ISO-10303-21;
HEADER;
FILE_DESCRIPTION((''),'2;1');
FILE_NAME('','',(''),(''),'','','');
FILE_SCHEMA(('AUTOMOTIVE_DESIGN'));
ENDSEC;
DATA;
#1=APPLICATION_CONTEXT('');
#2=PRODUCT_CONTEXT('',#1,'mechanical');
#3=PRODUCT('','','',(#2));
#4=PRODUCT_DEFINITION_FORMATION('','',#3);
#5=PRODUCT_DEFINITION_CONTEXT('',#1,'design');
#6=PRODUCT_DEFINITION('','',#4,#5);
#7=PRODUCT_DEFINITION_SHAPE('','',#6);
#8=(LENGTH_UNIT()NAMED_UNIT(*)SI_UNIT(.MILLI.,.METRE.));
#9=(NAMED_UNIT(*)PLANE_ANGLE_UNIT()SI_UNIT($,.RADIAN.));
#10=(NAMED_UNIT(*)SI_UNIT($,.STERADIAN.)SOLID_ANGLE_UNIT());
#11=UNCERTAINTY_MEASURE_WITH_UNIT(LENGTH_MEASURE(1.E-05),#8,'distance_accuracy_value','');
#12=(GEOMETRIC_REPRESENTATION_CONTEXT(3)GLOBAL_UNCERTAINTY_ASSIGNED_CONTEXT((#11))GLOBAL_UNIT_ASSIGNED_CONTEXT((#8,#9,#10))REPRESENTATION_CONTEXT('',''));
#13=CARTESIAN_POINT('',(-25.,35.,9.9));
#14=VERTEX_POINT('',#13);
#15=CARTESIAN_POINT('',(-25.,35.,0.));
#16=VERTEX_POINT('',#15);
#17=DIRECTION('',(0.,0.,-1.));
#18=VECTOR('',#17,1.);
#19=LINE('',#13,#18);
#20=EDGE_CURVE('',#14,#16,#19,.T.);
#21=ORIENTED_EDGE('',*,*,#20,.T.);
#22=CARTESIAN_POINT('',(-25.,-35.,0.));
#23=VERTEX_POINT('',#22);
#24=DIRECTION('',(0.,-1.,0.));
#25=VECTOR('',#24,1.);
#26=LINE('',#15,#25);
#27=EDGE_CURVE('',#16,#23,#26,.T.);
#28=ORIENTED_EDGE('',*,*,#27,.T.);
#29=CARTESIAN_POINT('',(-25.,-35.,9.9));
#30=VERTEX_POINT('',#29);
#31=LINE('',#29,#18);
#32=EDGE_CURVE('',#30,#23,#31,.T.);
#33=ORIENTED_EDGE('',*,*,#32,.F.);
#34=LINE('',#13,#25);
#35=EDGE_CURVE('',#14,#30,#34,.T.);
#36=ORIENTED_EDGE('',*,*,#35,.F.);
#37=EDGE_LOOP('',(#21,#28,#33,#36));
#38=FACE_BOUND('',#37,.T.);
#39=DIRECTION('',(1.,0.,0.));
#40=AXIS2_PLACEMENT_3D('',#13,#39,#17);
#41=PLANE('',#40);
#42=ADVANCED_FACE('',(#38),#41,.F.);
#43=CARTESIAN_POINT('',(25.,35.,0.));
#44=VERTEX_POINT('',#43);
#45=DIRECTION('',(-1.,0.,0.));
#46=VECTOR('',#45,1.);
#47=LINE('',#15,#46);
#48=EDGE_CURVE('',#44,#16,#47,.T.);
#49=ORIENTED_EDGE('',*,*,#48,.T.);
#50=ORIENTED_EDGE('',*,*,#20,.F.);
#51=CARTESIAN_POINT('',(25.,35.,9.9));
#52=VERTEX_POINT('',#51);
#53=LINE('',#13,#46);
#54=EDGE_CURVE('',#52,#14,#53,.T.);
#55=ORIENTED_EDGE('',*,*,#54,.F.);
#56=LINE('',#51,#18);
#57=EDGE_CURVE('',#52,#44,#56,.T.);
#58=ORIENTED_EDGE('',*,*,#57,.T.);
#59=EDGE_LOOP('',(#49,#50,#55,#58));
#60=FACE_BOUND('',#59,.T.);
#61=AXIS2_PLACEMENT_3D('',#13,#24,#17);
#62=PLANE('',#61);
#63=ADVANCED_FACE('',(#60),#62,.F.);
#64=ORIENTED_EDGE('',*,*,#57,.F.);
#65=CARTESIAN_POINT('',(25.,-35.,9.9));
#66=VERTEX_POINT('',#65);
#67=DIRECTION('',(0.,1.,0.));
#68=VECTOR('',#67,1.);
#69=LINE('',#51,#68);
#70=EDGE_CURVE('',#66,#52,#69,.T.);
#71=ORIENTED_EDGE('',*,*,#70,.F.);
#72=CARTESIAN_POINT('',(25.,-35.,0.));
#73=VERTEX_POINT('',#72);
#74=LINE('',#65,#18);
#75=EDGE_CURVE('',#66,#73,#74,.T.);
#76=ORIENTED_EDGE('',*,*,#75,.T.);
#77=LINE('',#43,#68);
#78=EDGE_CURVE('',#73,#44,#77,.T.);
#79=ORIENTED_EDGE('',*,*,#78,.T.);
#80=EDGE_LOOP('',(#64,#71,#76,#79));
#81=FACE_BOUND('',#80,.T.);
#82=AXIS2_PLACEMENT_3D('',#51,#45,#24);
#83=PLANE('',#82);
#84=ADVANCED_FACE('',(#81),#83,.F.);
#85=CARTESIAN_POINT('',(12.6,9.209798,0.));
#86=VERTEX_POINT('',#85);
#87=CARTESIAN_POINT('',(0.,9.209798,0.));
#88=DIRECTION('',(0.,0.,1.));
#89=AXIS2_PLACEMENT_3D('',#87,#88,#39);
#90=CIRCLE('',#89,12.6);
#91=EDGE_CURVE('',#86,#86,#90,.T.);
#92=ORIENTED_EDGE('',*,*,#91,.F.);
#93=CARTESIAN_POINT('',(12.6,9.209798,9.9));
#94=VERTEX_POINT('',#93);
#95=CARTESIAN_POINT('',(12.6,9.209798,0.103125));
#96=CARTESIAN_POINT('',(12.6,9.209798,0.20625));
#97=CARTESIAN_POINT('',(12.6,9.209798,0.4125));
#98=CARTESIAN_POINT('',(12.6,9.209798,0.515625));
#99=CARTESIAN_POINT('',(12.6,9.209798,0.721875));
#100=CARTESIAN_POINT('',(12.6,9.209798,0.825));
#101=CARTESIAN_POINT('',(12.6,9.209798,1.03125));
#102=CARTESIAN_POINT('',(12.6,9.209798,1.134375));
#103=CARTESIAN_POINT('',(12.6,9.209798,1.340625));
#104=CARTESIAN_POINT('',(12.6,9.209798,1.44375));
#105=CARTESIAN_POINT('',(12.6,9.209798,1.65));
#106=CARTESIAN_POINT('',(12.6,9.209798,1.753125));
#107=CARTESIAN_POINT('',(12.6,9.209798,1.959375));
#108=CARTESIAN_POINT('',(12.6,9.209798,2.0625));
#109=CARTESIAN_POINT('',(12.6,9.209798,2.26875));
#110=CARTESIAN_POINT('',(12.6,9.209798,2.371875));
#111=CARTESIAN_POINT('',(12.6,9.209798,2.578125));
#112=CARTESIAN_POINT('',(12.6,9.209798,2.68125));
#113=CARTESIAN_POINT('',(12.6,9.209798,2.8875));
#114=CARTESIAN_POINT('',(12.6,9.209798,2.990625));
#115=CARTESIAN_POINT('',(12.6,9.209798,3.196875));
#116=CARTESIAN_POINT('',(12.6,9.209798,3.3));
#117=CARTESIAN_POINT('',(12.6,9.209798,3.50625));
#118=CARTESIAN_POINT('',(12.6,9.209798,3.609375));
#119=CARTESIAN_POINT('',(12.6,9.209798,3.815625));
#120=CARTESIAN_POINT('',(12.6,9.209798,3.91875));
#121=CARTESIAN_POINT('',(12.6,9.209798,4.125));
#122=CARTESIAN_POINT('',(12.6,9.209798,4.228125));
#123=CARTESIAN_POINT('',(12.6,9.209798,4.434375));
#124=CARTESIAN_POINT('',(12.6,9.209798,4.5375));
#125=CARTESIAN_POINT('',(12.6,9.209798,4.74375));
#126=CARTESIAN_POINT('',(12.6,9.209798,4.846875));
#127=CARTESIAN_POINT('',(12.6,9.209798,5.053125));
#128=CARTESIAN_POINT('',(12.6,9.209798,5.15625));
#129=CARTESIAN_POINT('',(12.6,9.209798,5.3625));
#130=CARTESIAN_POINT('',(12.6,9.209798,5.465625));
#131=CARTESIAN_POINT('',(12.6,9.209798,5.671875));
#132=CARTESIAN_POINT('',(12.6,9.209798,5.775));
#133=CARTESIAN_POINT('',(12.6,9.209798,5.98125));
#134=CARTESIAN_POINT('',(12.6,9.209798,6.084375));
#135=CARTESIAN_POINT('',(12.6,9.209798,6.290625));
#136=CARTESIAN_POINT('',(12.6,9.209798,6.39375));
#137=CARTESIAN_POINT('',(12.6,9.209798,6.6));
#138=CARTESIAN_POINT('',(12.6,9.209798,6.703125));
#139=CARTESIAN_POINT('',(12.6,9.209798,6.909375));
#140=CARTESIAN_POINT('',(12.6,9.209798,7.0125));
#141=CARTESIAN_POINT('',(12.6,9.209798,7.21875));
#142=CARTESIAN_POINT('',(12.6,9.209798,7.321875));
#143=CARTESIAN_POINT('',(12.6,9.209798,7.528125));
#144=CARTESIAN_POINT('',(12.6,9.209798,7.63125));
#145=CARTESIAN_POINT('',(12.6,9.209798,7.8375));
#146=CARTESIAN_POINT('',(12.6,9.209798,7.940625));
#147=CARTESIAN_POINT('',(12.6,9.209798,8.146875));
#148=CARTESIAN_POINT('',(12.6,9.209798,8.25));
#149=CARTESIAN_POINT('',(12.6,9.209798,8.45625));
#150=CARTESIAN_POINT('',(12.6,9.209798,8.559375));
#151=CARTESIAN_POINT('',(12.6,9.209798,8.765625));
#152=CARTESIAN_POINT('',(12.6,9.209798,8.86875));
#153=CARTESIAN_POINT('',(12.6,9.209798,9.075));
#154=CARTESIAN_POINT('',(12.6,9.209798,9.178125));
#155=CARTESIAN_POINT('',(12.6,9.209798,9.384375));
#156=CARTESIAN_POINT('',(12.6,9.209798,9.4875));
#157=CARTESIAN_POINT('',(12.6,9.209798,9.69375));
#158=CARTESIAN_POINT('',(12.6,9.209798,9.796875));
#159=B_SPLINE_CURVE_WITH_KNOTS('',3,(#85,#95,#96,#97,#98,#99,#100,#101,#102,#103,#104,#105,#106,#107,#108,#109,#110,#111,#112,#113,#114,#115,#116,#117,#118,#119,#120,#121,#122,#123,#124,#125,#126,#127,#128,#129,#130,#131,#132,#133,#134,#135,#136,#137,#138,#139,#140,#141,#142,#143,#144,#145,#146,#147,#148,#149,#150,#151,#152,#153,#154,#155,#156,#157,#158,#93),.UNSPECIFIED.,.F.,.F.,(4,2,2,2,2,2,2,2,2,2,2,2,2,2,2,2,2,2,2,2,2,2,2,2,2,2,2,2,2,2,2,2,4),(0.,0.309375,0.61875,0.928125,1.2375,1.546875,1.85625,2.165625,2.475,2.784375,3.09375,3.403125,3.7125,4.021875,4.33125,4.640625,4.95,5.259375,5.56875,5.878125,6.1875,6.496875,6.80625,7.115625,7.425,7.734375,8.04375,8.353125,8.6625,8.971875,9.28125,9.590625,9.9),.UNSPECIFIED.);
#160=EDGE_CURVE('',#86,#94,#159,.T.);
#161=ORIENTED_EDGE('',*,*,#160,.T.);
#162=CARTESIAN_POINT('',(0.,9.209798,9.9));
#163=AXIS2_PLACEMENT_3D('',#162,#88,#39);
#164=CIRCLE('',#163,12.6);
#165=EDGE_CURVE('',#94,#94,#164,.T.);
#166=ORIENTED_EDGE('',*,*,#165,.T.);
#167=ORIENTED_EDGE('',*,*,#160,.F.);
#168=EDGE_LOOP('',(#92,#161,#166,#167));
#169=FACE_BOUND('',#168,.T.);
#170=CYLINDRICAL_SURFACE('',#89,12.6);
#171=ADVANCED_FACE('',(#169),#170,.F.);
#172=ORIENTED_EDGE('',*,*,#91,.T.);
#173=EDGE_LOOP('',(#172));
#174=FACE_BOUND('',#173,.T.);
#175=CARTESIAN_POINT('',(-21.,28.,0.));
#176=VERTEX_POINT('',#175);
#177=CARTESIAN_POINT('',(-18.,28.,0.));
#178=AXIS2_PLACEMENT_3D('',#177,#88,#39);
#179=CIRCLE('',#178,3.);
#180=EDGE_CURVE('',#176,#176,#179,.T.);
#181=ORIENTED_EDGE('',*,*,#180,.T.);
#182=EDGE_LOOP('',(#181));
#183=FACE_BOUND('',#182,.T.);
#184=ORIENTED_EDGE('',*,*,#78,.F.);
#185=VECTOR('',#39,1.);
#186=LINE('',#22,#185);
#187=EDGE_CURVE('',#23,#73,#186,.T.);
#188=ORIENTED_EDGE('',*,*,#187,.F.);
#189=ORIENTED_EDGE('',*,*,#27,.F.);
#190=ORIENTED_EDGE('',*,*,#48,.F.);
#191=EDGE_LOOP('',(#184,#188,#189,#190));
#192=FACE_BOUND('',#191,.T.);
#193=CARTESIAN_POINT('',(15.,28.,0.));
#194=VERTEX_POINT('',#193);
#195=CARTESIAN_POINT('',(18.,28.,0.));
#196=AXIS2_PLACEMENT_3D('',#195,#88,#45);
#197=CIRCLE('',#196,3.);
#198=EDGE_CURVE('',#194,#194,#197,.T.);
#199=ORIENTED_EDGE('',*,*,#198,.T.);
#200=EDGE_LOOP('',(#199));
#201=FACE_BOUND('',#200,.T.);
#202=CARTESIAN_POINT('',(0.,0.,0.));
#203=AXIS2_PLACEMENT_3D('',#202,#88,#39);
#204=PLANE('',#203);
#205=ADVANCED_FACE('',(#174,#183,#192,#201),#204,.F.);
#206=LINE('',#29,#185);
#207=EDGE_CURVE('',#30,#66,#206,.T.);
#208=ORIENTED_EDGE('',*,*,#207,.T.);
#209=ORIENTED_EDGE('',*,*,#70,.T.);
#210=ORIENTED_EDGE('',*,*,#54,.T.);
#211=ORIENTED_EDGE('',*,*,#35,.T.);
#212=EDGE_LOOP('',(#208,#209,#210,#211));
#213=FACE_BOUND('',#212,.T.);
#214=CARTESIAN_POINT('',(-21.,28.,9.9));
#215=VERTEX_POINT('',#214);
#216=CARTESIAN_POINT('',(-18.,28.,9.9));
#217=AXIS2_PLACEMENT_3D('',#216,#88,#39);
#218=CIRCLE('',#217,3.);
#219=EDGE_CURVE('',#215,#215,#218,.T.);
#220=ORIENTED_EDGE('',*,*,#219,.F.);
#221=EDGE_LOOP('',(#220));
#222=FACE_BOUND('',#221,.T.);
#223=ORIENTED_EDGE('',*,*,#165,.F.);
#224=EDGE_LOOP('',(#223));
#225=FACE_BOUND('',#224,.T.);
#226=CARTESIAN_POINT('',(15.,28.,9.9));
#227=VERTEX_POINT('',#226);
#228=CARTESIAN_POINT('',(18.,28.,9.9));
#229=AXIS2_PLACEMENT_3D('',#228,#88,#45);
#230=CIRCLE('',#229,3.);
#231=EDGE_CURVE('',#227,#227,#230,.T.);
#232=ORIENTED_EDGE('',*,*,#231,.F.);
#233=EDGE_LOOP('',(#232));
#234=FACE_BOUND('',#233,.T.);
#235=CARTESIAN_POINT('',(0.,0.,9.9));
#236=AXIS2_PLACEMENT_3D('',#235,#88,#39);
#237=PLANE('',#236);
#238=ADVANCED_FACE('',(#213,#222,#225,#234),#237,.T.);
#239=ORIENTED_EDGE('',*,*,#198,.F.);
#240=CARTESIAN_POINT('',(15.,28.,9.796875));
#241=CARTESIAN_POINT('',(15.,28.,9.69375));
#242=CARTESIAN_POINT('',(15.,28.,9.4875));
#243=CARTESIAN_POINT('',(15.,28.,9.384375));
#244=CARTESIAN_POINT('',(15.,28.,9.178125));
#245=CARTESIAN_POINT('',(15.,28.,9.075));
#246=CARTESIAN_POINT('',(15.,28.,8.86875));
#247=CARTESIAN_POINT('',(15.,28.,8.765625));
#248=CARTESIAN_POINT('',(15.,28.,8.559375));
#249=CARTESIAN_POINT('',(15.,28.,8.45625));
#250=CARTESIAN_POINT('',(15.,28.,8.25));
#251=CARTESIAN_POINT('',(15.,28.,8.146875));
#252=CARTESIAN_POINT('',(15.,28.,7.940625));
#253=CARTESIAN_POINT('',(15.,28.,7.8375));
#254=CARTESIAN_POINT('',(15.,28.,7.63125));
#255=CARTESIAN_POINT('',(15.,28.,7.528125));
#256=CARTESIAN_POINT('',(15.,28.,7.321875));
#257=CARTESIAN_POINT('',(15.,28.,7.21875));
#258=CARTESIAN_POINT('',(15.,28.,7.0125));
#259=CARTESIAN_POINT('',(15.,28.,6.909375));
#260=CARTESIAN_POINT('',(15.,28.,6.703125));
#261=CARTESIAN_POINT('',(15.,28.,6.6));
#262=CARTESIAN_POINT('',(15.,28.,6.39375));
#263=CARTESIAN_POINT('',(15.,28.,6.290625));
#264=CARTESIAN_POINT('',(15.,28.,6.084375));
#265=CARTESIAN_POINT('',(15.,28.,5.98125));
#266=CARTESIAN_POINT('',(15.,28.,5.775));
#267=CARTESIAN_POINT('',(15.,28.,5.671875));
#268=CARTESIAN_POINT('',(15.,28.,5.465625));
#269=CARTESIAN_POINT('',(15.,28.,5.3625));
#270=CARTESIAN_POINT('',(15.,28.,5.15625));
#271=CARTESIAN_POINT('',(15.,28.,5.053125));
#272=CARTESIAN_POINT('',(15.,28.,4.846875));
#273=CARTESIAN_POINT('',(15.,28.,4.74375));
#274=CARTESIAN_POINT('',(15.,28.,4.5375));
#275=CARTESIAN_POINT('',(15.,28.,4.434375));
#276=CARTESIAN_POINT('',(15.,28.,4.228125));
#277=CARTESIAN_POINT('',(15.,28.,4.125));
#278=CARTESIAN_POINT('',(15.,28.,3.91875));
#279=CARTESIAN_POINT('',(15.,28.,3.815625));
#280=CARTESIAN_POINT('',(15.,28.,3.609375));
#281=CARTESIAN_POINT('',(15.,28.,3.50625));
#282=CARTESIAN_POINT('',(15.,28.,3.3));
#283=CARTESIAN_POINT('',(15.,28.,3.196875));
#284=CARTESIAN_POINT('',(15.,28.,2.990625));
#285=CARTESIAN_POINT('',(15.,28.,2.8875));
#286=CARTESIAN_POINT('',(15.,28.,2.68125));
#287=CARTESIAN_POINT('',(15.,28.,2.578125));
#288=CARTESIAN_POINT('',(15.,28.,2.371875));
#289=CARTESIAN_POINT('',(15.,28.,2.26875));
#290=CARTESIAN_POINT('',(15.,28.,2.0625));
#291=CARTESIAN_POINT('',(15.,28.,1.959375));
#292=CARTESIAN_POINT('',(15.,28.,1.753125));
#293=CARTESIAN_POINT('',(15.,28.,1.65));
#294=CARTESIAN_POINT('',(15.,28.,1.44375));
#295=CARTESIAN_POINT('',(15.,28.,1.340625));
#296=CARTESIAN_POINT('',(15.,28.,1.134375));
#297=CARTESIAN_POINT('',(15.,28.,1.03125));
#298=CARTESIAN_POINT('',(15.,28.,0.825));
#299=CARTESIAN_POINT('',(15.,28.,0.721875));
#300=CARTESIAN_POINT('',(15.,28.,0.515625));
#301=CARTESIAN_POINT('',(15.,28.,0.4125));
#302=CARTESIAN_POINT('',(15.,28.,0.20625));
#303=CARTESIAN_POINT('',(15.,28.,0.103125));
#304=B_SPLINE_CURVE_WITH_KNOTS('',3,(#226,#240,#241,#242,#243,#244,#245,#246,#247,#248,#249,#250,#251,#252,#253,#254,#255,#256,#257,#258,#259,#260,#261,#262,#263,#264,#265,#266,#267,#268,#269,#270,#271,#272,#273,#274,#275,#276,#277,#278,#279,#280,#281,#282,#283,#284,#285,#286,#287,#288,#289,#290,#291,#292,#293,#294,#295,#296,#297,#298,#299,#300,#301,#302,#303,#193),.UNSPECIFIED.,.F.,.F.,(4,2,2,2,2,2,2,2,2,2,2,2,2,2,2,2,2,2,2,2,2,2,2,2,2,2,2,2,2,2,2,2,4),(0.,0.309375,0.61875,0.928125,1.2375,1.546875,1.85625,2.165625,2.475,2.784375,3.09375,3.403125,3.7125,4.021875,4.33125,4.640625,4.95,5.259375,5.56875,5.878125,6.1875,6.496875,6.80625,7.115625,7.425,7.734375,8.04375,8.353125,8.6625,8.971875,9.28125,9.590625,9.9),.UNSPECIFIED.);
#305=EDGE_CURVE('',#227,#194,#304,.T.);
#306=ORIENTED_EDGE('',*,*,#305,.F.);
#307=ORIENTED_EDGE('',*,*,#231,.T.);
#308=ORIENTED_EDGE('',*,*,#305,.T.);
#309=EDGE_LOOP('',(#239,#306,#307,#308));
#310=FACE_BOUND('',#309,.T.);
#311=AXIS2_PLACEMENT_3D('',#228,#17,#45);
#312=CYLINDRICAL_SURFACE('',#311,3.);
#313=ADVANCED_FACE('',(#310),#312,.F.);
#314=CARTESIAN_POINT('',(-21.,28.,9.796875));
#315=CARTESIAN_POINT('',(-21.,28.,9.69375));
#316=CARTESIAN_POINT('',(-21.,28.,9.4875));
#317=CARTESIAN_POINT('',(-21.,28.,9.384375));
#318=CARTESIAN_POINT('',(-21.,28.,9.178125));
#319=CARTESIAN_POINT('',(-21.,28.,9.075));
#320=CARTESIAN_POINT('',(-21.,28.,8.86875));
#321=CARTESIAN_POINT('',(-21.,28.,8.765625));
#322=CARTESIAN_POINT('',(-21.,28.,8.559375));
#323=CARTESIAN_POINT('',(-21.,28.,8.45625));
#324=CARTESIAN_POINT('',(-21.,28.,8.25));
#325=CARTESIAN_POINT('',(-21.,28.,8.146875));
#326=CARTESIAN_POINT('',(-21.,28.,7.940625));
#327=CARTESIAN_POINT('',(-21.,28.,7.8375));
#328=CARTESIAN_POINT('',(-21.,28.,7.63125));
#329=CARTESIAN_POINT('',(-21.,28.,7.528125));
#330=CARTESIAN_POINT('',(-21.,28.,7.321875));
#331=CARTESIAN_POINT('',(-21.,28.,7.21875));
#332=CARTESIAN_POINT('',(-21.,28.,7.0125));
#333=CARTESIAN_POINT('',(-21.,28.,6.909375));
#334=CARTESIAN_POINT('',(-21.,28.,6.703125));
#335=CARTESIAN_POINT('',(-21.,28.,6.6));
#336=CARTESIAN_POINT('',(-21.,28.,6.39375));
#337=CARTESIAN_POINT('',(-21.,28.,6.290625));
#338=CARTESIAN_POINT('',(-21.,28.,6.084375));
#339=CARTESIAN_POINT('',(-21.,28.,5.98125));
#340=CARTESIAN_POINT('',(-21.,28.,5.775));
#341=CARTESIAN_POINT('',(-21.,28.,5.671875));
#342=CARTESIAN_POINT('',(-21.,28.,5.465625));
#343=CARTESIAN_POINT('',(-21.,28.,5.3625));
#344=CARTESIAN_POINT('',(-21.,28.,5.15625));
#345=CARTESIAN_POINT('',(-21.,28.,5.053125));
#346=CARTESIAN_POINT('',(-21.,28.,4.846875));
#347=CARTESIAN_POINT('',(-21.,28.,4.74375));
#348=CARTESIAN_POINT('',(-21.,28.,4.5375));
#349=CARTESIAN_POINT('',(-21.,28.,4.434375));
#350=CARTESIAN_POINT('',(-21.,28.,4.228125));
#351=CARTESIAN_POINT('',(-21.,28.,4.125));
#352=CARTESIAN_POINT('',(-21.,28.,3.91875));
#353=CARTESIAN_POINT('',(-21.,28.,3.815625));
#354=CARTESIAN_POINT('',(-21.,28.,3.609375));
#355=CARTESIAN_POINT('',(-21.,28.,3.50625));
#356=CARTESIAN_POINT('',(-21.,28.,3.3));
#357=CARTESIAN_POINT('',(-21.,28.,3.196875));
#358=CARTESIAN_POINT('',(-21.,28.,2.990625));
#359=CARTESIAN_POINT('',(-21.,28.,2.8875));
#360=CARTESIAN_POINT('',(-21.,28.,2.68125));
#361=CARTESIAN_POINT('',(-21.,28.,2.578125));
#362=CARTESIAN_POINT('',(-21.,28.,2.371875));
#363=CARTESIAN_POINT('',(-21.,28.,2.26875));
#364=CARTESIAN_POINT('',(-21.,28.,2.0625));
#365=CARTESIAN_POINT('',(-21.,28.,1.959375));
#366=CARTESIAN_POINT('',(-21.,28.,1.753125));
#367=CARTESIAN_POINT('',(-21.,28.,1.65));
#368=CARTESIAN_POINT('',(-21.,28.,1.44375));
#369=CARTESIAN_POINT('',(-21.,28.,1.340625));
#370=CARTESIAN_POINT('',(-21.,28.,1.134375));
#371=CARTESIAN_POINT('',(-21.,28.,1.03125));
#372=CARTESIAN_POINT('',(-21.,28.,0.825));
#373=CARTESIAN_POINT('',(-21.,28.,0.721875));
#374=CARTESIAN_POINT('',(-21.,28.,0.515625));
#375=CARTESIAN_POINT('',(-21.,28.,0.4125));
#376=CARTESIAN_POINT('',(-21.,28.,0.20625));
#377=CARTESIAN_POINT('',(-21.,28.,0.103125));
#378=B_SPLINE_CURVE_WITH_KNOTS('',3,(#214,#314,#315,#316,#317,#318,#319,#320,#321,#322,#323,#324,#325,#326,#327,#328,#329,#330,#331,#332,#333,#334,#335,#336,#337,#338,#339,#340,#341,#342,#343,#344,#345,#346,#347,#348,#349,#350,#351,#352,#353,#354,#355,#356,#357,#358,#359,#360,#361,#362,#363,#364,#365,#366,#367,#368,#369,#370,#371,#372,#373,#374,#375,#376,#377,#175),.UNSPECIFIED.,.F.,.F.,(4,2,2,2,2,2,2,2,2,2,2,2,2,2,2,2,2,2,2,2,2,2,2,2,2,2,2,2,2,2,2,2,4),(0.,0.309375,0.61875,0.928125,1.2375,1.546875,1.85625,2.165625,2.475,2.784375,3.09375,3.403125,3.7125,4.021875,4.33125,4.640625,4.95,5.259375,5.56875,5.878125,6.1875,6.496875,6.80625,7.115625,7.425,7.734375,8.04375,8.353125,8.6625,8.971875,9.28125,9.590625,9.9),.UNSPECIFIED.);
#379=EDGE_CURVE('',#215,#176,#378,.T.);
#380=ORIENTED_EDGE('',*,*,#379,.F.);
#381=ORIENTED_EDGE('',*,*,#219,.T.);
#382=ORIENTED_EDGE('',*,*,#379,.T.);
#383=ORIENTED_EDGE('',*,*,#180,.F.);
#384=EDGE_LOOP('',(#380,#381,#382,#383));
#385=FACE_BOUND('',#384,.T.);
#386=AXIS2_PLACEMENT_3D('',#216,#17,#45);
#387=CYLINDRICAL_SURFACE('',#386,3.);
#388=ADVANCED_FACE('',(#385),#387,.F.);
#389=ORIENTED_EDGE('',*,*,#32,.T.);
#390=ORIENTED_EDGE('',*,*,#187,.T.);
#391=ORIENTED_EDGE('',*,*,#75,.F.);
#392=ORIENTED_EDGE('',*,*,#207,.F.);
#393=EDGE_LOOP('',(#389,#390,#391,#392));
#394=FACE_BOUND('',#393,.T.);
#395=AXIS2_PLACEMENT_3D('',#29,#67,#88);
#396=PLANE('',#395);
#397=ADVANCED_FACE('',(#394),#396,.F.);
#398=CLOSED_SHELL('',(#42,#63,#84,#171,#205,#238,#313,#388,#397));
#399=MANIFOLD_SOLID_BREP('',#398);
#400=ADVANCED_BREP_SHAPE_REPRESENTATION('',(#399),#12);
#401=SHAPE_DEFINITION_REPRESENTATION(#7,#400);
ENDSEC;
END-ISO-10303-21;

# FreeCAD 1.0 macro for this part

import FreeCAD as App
import Part
import Sketcher
from FreeCAD import Vector
Q = App.Units.Quantity


def add_polygon(sketch, points):
    """Adds a closed chain of lines whose ends are joined by coincident constraints."""
    first, n = sketch.GeometryCount, len(points)
    for a, b in zip(points, points[1:] + points[:1]):
        sketch.addGeometry(Part.LineSegment(App.Vector(*a, 0), App.Vector(*b, 0)), False)
    for i in range(n):
        sketch.addConstraint(Sketcher.Constraint("Coincident", first + i, 2, first + (i + 1) % n, 1))

doc = App.newDocument("Part")
body = doc.addObject("PartDesign::Body", "Body")

# Sketch on XY plane
sketch1 = body.newObject("Sketcher::SketchObject", "Sketch")
sketch1.AttachmentSupport = (doc.getObject("XY_Plane"), [""])
sketch1.MapMode = "FlatFace"
add_polygon(sketch1, [(-25, 35), (-25, -35), (25, -35), (25, 35)])  # lines 0-3
sketch1.addGeometry(Part.Circle(Vector(-18, 28, 0), Vector(0, 0, 1), 3), False)  # 4
sketch1.addGeometry(Part.Circle(Vector(18, 28, 0), Vector(0, 0, 1), 3), False)  # 5
sketch1.addConstraint(Sketcher.Constraint("Vertical", 0))
sketch1.addConstraint(Sketcher.Constraint("Horizontal", 1))
sketch1.addConstraint(Sketcher.Constraint("Vertical", 2))
sketch1.addConstraint(Sketcher.Constraint("Horizontal", 3))
sketch1.addConstraint(Sketcher.Constraint("Equal", 4, 5))
sketch1.addConstraint(Sketcher.Constraint("Symmetric", 0, 2, 2, 2, -1, 1))
sketch1.addConstraint(Sketcher.Constraint("Symmetric", 4, 3, 5, 3, -2))
sketch1.addConstraint(Sketcher.Constraint("Diameter", 4, Q("6 mm")))
sketch1.addConstraint(Sketcher.Constraint("DistanceX", 1, 1, 1, 2, Q("50 mm")))
sketch1.addConstraint(Sketcher.Constraint("DistanceY", 0, 2, 0, 1, Q("70 mm")))
sketch1.addConstraint(Sketcher.Constraint("DistanceX", 4, 3, -1, 1, Q("18 mm")))
sketch1.addConstraint(Sketcher.Constraint("DistanceY", -1, 1, 4, 3, Q("28 mm")))
pad1 = body.newObject("PartDesign::Pad", "Pad")
pad1.Profile = sketch1
pad1.Length = 9.9

# Sketch on XY plane
sketch2 = body.newObject("Sketcher::SketchObject", "Sketch001")
sketch2.AttachmentSupport = (doc.getObject("XY_Plane"), [""])
sketch2.MapMode = "FlatFace"
sketch2.AttachmentOffset = App.Placement(Vector(0, 0, 9.9), App.Rotation())
sketch2.addGeometry(Part.Circle(Vector(0, 9, 0), Vector(0, 0, 1), 13), False)
sketch2.addConstraint(Sketcher.Constraint("PointOnObject", 0, 3, -2))
sketch2.addConstraint(Sketcher.Constraint("Diameter", 0, Q("25.2 mm")))
sketch2.addConstraint(Sketcher.Constraint("DistanceY", -1, 1, 0, 3, Q("9.209798 mm")))
pocket1 = body.newObject("PartDesign::Pocket", "Pocket")
pocket1.Profile = sketch2
pocket1.Length = 9.9

doc.recompute()
